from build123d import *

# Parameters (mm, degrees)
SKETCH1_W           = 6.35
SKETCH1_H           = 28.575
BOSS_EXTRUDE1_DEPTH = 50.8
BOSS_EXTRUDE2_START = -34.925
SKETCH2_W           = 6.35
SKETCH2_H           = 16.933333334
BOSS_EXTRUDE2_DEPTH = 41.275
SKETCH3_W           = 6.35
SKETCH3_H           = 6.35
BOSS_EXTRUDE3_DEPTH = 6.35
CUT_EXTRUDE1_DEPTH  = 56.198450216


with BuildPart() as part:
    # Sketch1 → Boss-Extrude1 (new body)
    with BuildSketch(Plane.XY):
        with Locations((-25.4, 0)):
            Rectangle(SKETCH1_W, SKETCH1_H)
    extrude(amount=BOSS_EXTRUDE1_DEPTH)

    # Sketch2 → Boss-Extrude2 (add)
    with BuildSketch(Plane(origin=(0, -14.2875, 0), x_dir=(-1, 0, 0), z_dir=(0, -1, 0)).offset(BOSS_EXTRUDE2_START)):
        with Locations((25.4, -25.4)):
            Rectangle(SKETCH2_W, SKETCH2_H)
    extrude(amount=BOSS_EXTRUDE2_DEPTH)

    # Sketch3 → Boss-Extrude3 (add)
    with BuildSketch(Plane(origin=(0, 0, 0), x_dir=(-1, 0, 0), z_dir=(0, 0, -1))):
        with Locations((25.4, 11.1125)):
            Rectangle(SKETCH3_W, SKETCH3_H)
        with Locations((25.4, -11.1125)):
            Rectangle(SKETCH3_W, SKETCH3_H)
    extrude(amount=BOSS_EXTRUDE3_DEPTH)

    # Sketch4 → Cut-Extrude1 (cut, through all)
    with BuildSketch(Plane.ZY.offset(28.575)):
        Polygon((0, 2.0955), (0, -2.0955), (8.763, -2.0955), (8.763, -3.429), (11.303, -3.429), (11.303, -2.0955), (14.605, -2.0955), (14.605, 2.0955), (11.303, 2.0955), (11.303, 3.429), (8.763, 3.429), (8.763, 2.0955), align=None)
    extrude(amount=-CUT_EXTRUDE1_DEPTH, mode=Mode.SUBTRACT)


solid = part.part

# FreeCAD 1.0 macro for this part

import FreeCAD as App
import Part
import Sketcher

V = App.Vector
Q = App.Units.Quantity


def add_polygon(sketch, points):
    """Adds a closed chain of lines whose ends are joined by coincident constraints."""
    first, n = sketch.GeometryCount, len(points)
    for a, b in zip(points, points[1:] + points[:1]):
        sketch.addGeometry(Part.LineSegment(App.Vector(*a, 0), App.Vector(*b, 0)), False)
    for i in range(n):
        sketch.addConstraint(Sketcher.Constraint("Coincident", first + i, 2, first + (i + 1) % n, 1))

doc = App.newDocument("Part")
body = doc.addObject("PartDesign::Body", "Body")

# Sketch on XY plane
sketch1 = body.newObject("Sketcher::SketchObject", "Sketch")
sketch1.AttachmentSupport = (doc.getObject("XY_Plane"), [""])
sketch1.MapMode = "FlatFace"
add_polygon(sketch1, [(-29, 14), (-29, -14), (-22, -14), (-22, 14)])  # lines 0-3
sketch1.addConstraint(Sketcher.Constraint("Vertical", 0))
sketch1.addConstraint(Sketcher.Constraint("Horizontal", 1))
sketch1.addConstraint(Sketcher.Constraint("Vertical", 2))
sketch1.addConstraint(Sketcher.Constraint("Horizontal", 3))
sketch1.addConstraint(Sketcher.Constraint("DistanceX", 1, 1, 1, 2, Q("0.25 in")))
sketch1.addConstraint(Sketcher.Constraint("DistanceY", 0, 2, 0, 1, Q("1.125 in")))
sketch1.addConstraint(Sketcher.Constraint("DistanceX", 0, 2, -1, 1, Q("1.125 in")))
sketch1.addConstraint(Sketcher.Constraint("DistanceY", 0, 2, -1, 1, Q("0.5625 in")))
pad1 = body.newObject("PartDesign::Pad", "Pad")
pad1.Profile = sketch1
pad1.Length = Q("2 in")

# Sketch on XZ plane
sketch2 = body.newObject("Sketcher::SketchObject", "Sketch001")
sketch2.AttachmentSupport = (doc.getObject("XZ_Plane"), [""])
sketch2.MapMode = "FlatFace"
sketch2.AttachmentOffset = App.Placement(V(0, 0, -0.8125 * 25.4), App.Rotation())
add_polygon(sketch2, [(-22, 17), (-22, 34), (-29, 34), (-29, 17)])  # lines 0-3
sketch2.addConstraint(Sketcher.Constraint("Vertical", 0))
sketch2.addConstraint(Sketcher.Constraint("Horizontal", 1))
sketch2.addConstraint(Sketcher.Constraint("Vertical", 2))
sketch2.addConstraint(Sketcher.Constraint("Horizontal", 3))
sketch2.addConstraint(Sketcher.Constraint("DistanceX", 1, 2, 1, 1, Q("0.25 in")))
sketch2.addConstraint(Sketcher.Constraint("DistanceX", 0, 2, -1, 1, Q("0.875 in")))
sketch2.addConstraint(Sketcher.Constraint("DistanceY", 0, 1, 0, 2, 16.933333))
sketch2.addConstraint(Sketcher.Constraint("DistanceY", -1, 1, 0, 2, 33.866667))
pad2 = body.newObject("PartDesign::Pad", "Pad001")
pad2.Profile = sketch2
pad2.Length = Q("1.625 in")

# Sketch on XY plane
sketch3 = body.newObject("Sketcher::SketchObject", "Sketch002")
sketch3.AttachmentSupport = (doc.getObject("XY_Plane"), [""])
sketch3.MapMode = "FlatFace"
add_polygon(sketch3, [(-22, 14), (-22, 8), (-29, 8), (-29, 14)])  # lines 0-3
add_polygon(sketch3, [(-22, -8), (-22, -14), (-29, -14), (-29, -8)])  # lines 4-7
sketch3.addConstraint(Sketcher.Constraint("Vertical", 0))
sketch3.addConstraint(Sketcher.Constraint("Horizontal", 1))
sketch3.addConstraint(Sketcher.Constraint("Vertical", 2))
sketch3.addConstraint(Sketcher.Constraint("Horizontal", 3))
sketch3.addConstraint(Sketcher.Constraint("Vertical", 4))
sketch3.addConstraint(Sketcher.Constraint("Horizontal", 5))
sketch3.addConstraint(Sketcher.Constraint("Vertical", 6))
sketch3.addConstraint(Sketcher.Constraint("Horizontal", 7))
sketch3.addConstraint(Sketcher.Constraint("Symmetric", 3, 2, 4, 2, -1))
sketch3.addConstraint(Sketcher.Constraint("Symmetric", 1, 2, 6, 2, -1))
sketch3.addConstraint(Sketcher.Constraint("Equal", 7, 0))
sketch3.addConstraint(Sketcher.Constraint("DistanceX", 1, 2, 1, 1, Q("0.25 in")))
sketch3.addConstraint(Sketcher.Constraint("DistanceX", 0, 2, -1, 1, Q("0.875 in")))
sketch3.addConstraint(Sketcher.Constraint("DistanceY", -1, 1, 0, 2, Q("0.3125 in")))
pad3 = body.newObject("PartDesign::Pad", "Pad002")
pad3.Profile = sketch3
pad3.Length = Q("0.25 in")
pad3.Reversed = True

# Sketch on YZ plane
sketch4 = body.newObject("Sketcher::SketchObject", "Sketch003")
sketch4.AttachmentSupport = (doc.getObject("YZ_Plane"), [""])
sketch4.MapMode = "FlatFace"
sketch4.AttachmentOffset = App.Placement(V(0, 0, -1.125 * 25.4), App.Rotation())
add_polygon(sketch4, [(2.1, 0), (-2.1, 0), (-2.1, 8.8), (-3.4, 8.8), (-3.4, 11.3), (-2.1, 11.3), (-2.1, 14.6), (2.1, 14.6), (2.1, 11.3), (3.4, 11.3), (3.4, 8.8), (2.1, 8.8)])  # lines 0-11
sketch4.addConstraint(Sketcher.Constraint("Horizontal", 0))
sketch4.addConstraint(Sketcher.Constraint("Vertical", 1))
sketch4.addConstraint(Sketcher.Constraint("Horizontal", 2))
sketch4.addConstraint(Sketcher.Constraint("Vertical", 3))
sketch4.addConstraint(Sketcher.Constraint("Horizontal", 4))
sketch4.addConstraint(Sketcher.Constraint("Vertical", 5))
sketch4.addConstraint(Sketcher.Constraint("Horizontal", 6))
sketch4.addConstraint(Sketcher.Constraint("Vertical", 7))
sketch4.addConstraint(Sketcher.Constraint("Horizontal", 8))
sketch4.addConstraint(Sketcher.Constraint("Vertical", 9))
sketch4.addConstraint(Sketcher.Constraint("Horizontal", 10))
sketch4.addConstraint(Sketcher.Constraint("Vertical", 11))
sketch4.addConstraint(Sketcher.Constraint("Symmetric", 0, 2, 11, 2, -1, 1))
sketch4.addConstraint(Sketcher.Constraint("Symmetric", 4, 2, 7, 2, -2))
sketch4.addConstraint(Sketcher.Constraint("Symmetric", 2, 2, 9, 2, -2))
sketch4.addConstraint(Sketcher.Constraint("Vertical", 1, 2, 4, 2))
sketch4.addConstraint(Sketcher.Constraint("DistanceY", 3, 1, 3, 2, Q("0.1 in")))
sketch4.addConstraint(Sketcher.Constraint("DistanceY", 5, 1, 5, 2, Q("0.13 in")))
sketch4.addConstraint(Sketcher.Constraint("DistanceX", 0, 2, 0, 1, Q("0.165 in")))
sketch4.addConstraint(Sketcher.Constraint("DistanceY", 1, 1, 1, 2, Q("0.345 in")))
sketch4.addConstraint(Sketcher.Constraint("DistanceX", 2, 2, 2, 1, Q("0.0525 in")))
pocket1 = body.newObject("PartDesign::Pocket", "Pocket")
pocket1.Profile = sketch4
pocket1.Type = "ThroughAll"
pocket1.Reversed = True

doc.recompute()
